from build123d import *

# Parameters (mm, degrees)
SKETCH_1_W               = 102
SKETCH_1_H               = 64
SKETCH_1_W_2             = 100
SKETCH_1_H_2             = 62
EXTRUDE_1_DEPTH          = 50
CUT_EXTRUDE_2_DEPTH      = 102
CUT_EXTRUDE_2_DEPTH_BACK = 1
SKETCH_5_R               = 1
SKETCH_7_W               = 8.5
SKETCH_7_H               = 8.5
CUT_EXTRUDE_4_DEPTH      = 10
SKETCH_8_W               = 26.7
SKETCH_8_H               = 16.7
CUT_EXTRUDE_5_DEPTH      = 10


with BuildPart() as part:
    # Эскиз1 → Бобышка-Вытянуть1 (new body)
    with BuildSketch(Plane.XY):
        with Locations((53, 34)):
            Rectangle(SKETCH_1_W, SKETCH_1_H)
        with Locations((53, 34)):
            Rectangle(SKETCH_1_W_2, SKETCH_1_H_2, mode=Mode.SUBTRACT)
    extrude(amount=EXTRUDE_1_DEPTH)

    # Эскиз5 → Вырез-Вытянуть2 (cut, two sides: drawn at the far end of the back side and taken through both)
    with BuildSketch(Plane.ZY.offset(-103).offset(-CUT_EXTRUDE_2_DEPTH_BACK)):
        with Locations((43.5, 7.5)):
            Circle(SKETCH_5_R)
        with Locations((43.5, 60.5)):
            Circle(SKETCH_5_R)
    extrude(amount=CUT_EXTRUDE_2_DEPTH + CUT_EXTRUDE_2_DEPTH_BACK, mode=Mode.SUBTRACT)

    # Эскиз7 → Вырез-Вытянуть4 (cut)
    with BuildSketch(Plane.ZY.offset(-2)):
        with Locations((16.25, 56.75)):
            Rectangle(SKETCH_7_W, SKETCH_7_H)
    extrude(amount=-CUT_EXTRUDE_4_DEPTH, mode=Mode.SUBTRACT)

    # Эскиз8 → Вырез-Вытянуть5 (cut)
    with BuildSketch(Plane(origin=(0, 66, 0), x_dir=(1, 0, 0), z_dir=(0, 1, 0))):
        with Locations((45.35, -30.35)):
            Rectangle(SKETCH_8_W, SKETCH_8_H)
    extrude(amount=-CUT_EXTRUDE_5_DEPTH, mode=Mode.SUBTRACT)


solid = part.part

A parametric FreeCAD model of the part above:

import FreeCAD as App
import Part
import Sketcher
from FreeCAD import Vector

doc = App.newDocument("Part")
params = doc.addObject("Spreadsheet::Sheet", "Params")
for row, (alias, value) in enumerate([
    ("sketch1_width", "102 mm"),
    ("sketch1_width2", "100 mm"),
    ("sketch1_height", "64 mm"),
    ("sketch1_height2", "62 mm"),
    ("pad1_length", "50 mm"),
    ("sketch2_diameter", "2 mm"),
    ("sketch3_width", "8.5 mm"),
    ("pocket2_length", "10 mm"),
    ("sketch4_width", "26.7 mm"),
    ("sketch4_height", "16.7 mm"),
    ("pocket3_length", "10 mm"),
], start=1):
    params.set(f"A{row}", alias)
    params.set(f"B{row}", "=" + value)
    params.setAlias(f"B{row}", alias)

body = doc.addObject("PartDesign::Body", "Body")

# Sketch on XY plane
sketch1 = doc.addObject("Sketcher::SketchObject", "Sketch")
body.addObject(sketch1)
sketch1.AttachmentSupport = (doc.XY_Plane, [""])
sketch1.MapMode = "FlatFace"
sketch1.addGeometry([
    Part.LineSegment(Vector(2, 66, 0), Vector(2, 2, 0)),  # 0
    Part.LineSegment(Vector(2, 2, 0), Vector(104, 2, 0)),  # 1
    Part.LineSegment(Vector(104, 2, 0), Vector(104, 66, 0)),  # 2
    Part.LineSegment(Vector(104, 66, 0), Vector(2, 66, 0)),  # 3
    Part.LineSegment(Vector(103, 3, 0), Vector(3, 3, 0)),  # 4
    Part.LineSegment(Vector(3, 3, 0), Vector(3, 65, 0)),  # 5
    Part.LineSegment(Vector(3, 65, 0), Vector(103, 65, 0)),  # 6
    Part.LineSegment(Vector(103, 65, 0), Vector(103, 3, 0)),  # 7
], False)
sketch1.addConstraint([
    Sketcher.Constraint("Coincident", 0, 2, 1, 1),
    Sketcher.Constraint("Coincident", 1, 2, 2, 1),
    Sketcher.Constraint("Coincident", 2, 2, 3, 1),
    Sketcher.Constraint("Coincident", 3, 2, 0, 1),
    Sketcher.Constraint("Coincident", 4, 2, 5, 1),
    Sketcher.Constraint("Coincident", 5, 2, 6, 1),
    Sketcher.Constraint("Coincident", 6, 2, 7, 1),
    Sketcher.Constraint("Coincident", 7, 2, 4, 1),
    Sketcher.Constraint("Vertical", 0),
    Sketcher.Constraint("Horizontal", 1),
    Sketcher.Constraint("Vertical", 2),
    Sketcher.Constraint("Horizontal", 3),
    Sketcher.Constraint("Horizontal", 4),
    Sketcher.Constraint("Vertical", 5),
    Sketcher.Constraint("Horizontal", 6),
    Sketcher.Constraint("Vertical", 7),
    Sketcher.Constraint("DistanceX", 1, 1, 1, 2, 102.0),
    Sketcher.Constraint("DistanceX", 4, 2, 4, 1, 100.0),
    Sketcher.Constraint("DistanceY", 0, 2, 0, 1, 64.0),
    Sketcher.Constraint("DistanceY", 5, 1, 5, 2, 62.0),
    Sketcher.Constraint("DistanceX", -1, 1, 0, 2, 2.0),
    Sketcher.Constraint("DistanceY", -1, 1, 0, 2, 2.0),
    Sketcher.Constraint("DistanceX", -1, 1, 4, 2, 3.0),
    Sketcher.Constraint("DistanceY", -1, 1, 4, 2, 3.0),
])
sketch1.setExpression("Constraints[16]", "Params.sketch1_width")
sketch1.setExpression("Constraints[17]", "Params.sketch1_width2")
sketch1.setExpression("Constraints[18]", "Params.sketch1_height")
sketch1.setExpression("Constraints[19]", "Params.sketch1_height2")
pad1 = doc.addObject("PartDesign::Pad", "Pad")
body.addObject(pad1)
pad1.Profile = sketch1
pad1.setExpression("Length", "Params.pad1_length")

# Sketch on YZ plane
sketch2 = doc.addObject("Sketcher::SketchObject", "Sketch001")
body.addObject(sketch2)
sketch2.AttachmentSupport = (doc.YZ_Plane, [""])
sketch2.MapMode = "FlatFace"
sketch2.AttachmentOffset = App.Placement(Vector(0, 0, 103), App.Rotation())
sketch2.addGeometry([
    Part.Circle(Vector(7.5, 43.5, 0), Vector(0, 0, 1), 1),
    Part.Circle(Vector(60.5, 43.5, 0), Vector(0, 0, 1), 1),
], False)
sketch2.addConstraint([
    Sketcher.Constraint("Equal", 0, 1),
    Sketcher.Constraint("Horizontal", 0, 3, 1, 3),
    Sketcher.Constraint("Diameter", 0, 2.0),
    Sketcher.Constraint("DistanceX", 0, 3, 1, 3, 53.0),
    Sketcher.Constraint("DistanceX", -1, 1, 0, 3, 7.5),
    Sketcher.Constraint("DistanceY", -1, 1, 0, 3, 43.5),
])
sketch2.setExpression("Constraints[2]", "Params.sketch2_diameter")
pocket1 = doc.addObject("PartDesign::Pocket", "Pocket")
body.addObject(pocket1)
pocket1.Profile = sketch2
pocket1.Type = "ThroughAll"
pocket1.Midplane = True

# Sketch on YZ plane
sketch3 = doc.addObject("Sketcher::SketchObject", "Sketch002")
body.addObject(sketch3)
sketch3.AttachmentSupport = (doc.YZ_Plane, [""])
sketch3.MapMode = "FlatFace"
sketch3.AttachmentOffset = App.Placement(Vector(0, 0, 2), App.Rotation())
sketch3.addGeometry([
    Part.LineSegment(Vector(61, 12, 0), Vector(52.5, 12, 0)),
    Part.LineSegment(Vector(52.5, 12, 0), Vector(52.5, 20.5, 0)),
    Part.LineSegment(Vector(52.5, 20.5, 0), Vector(61, 20.5, 0)),
    Part.LineSegment(Vector(61, 20.5, 0), Vector(61, 12, 0)),
], False)
sketch3.addConstraint([
    Sketcher.Constraint("Coincident", 0, 2, 1, 1),
    Sketcher.Constraint("Coincident", 1, 2, 2, 1),
    Sketcher.Constraint("Coincident", 2, 2, 3, 1),
    Sketcher.Constraint("Coincident", 3, 2, 0, 1),
    Sketcher.Constraint("Horizontal", 0),
    Sketcher.Constraint("Vertical", 1),
    Sketcher.Constraint("Horizontal", 2),
    Sketcher.Constraint("Vertical", 3),
    Sketcher.Constraint("Equal", 2, 1),
    Sketcher.Constraint("DistanceX", 0, 2, 0, 1, 8.5),
    Sketcher.Constraint("DistanceY", -1, 1, 0, 2, 12.0),
    Sketcher.Constraint("DistanceX", -1, 1, 2, 2, 61.0),
])
sketch3.setExpression("Constraints[9]", "Params.sketch3_width")
pocket2 = doc.addObject("PartDesign::Pocket", "Pocket001")
body.addObject(pocket2)
pocket2.Profile = sketch3
pocket2.setExpression("Length", "Params.pocket2_length")
pocket2.Reversed = True

# Sketch on XZ plane
sketch4 = doc.addObject("Sketcher::SketchObject", "Sketch003")
body.addObject(sketch4)
sketch4.AttachmentSupport = (doc.XZ_Plane, [""])
sketch4.MapMode = "FlatFace"
sketch4.AttachmentOffset = App.Placement(Vector(0, 0, -66), App.Rotation())
sketch4.addGeometry([
    Part.LineSegment(Vector(32, 22, 0), Vector(32, 38.7, 0)),
    Part.LineSegment(Vector(32, 38.7, 0), Vector(58.7, 38.7, 0)),
    Part.LineSegment(Vector(58.7, 38.7, 0), Vector(58.7, 22, 0)),
    Part.LineSegment(Vector(58.7, 22, 0), Vector(32, 22, 0)),
], False)
sketch4.addConstraint([
    Sketcher.Constraint("Coincident", 0, 2, 1, 1),
    Sketcher.Constraint("Coincident", 1, 2, 2, 1),
    Sketcher.Constraint("Coincident", 2, 2, 3, 1),
    Sketcher.Constraint("Coincident", 3, 2, 0, 1),
    Sketcher.Constraint("Vertical", 0),
    Sketcher.Constraint("Horizontal", 1),
    Sketcher.Constraint("Vertical", 2),
    Sketcher.Constraint("Horizontal", 3),
    Sketcher.Constraint("DistanceX", 1, 1, 1, 2, 26.7),
    Sketcher.Constraint("DistanceY", 0, 1, 0, 2, 16.7),
    Sketcher.Constraint("DistanceX", -1, 1, 0, 2, 32.0),
    Sketcher.Constraint("DistanceY", -1, 1, 2, 2, 22.0),
])
sketch4.setExpression("Constraints[8]", "Params.sketch4_width")
sketch4.setExpression("Constraints[9]", "Params.sketch4_height")
pocket3 = doc.addObject("PartDesign::Pocket", "Pocket002")
body.addObject(pocket3)
pocket3.Profile = sketch4
pocket3.setExpression("Length", "Params.pocket3_length")
pocket3.Reversed = True

doc.recompute()
